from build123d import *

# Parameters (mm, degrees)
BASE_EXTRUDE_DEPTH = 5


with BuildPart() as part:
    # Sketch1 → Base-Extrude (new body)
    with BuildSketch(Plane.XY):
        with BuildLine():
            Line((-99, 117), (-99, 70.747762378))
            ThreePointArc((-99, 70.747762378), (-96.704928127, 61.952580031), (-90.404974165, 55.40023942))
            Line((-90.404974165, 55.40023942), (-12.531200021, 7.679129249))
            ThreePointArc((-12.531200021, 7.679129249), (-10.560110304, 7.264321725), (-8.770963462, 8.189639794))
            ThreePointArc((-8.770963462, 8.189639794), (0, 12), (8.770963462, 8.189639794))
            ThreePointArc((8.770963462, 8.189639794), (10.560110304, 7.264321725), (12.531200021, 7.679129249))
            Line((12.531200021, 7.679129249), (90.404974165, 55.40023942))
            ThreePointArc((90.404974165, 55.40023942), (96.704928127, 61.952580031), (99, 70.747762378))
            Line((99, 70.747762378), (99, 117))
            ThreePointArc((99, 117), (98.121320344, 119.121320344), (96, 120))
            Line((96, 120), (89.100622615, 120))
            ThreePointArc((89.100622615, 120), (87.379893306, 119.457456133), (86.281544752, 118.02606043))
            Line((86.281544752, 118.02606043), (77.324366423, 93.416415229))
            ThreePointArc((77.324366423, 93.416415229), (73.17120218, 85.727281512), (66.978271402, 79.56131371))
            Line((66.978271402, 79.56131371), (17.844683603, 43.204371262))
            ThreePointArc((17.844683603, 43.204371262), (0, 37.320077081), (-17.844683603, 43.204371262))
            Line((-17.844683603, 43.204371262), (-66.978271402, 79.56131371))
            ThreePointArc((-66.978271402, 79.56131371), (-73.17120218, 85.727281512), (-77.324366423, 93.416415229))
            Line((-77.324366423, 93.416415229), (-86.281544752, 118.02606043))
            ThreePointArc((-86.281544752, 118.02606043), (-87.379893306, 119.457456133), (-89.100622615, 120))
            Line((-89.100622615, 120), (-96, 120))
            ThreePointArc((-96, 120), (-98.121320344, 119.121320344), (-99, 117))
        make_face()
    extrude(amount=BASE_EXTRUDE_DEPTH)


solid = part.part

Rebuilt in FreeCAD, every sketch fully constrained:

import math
import FreeCAD as App
import Part
import Sketcher

V = App.Vector
Q = App.Units.Quantity

doc = App.newDocument("Part")
params = doc.addObject("Spreadsheet::Sheet", "Params")
for row, (alias, value) in enumerate([
    ("sketch1_radius", "18 mm"),
    ("sketch1_radius2", "3 mm"),
    ("sketch1_radius3", "12 mm"),
    ("sketch1_radius4", "30 mm"),
    ("pad1_length", "5 mm"),
], start=1):
    params.set(f"A{row}", alias)
    params.set(f"B{row}", "=" + value)
    params.setAlias(f"B{row}", alias)

body = doc.addObject("PartDesign::Body", "Body")

# Sketch on XY plane
sketch1 = doc.addObject("Sketcher::SketchObject", "Sketch")
body.addObject(sketch1)
sketch1.AttachmentSupport = (doc.XY_Plane, [""])
sketch1.MapMode = "FlatFace"
sketch1.addGeometry(Part.LineSegment(V(-99, 117, 0), V(-99, 70.7, 0)), False)
sketch1.addGeometry(Part.ArcOfCircle(Part.Circle(V(-81, 70.7, 0), V(0, 0, 1), 18), math.radians(-180), math.radians(-122)), False)
sketch1.addGeometry(Part.LineSegment(V(-90.4, 55.4, 0), V(-12.5, 7.7, 0)), False)
sketch1.addGeometry(Part.ArcOfCircle(Part.Circle(V(-11, 10.2, 0), V(0, 0, 1), 3), math.radians(-122), math.radians(-43)), False)
sketch1.addGeometry(Part.ArcOfCircle(Part.Circle(V(0, 0, 0), V(0, 0, 1), 12), math.radians(43), math.radians(137)), False)
sketch1.addGeometry(Part.ArcOfCircle(Part.Circle(V(11, 10.2, 0), V(0, 0, 1), 3), math.radians(-137), math.radians(-58)), False)
sketch1.addGeometry(Part.LineSegment(V(12.5, 7.7, 0), V(90.4, 55.4, 0)), False)
sketch1.addGeometry(Part.ArcOfCircle(Part.Circle(V(81, 70.7, 0), V(0, 0, 1), 18), math.radians(-58), math.radians(0)), False)
sketch1.addGeometry(Part.LineSegment(V(99, 70.7, 0), V(99, 117, 0)), False)
sketch1.addGeometry(Part.ArcOfCircle(Part.Circle(V(96, 117, 0), V(0, 0, 1), 3), math.radians(0), math.radians(90)), False)
sketch1.addGeometry(Part.LineSegment(V(96, 120, 0), V(89.1, 120, 0)), False)
sketch1.addGeometry(Part.ArcOfCircle(Part.Circle(V(89.1, 117, 0), V(0, 0, 1), 3), math.radians(90), math.radians(160)), False)
sketch1.addGeometry(Part.LineSegment(V(86.3, 118, 0), V(77.3, 93.4, 0)), False)
sketch1.addGeometry(Part.ArcOfCircle(Part.Circle(V(49.1, 103.7, 0), V(0, 0, 1), 30), math.radians(-53), math.radians(-20)), False)
sketch1.addGeometry(Part.LineSegment(V(67, 79.6, 0), V(17.8, 43.2, 0)), False)
sketch1.addGeometry(Part.ArcOfCircle(Part.Circle(V(0, 67.3, 0), V(0, 0, 1), 30), math.radians(-126), math.radians(-54)), False)
sketch1.addGeometry(Part.LineSegment(V(-17.8, 43.2, 0), V(-67, 79.6, 0)), False)
sketch1.addGeometry(Part.ArcOfCircle(Part.Circle(V(-49.1, 103.7, 0), V(0, 0, 1), 30), math.radians(-160), math.radians(-127)), False)
sketch1.addGeometry(Part.LineSegment(V(-77.3, 93.4, 0), V(-86.3, 118, 0)), False)
sketch1.addGeometry(Part.ArcOfCircle(Part.Circle(V(-89.1, 117, 0), V(0, 0, 1), 3), math.radians(20), math.radians(90)), False)
sketch1.addGeometry(Part.LineSegment(V(-89.1, 120, 0), V(-96, 120, 0)), False)
sketch1.addGeometry(Part.ArcOfCircle(Part.Circle(V(-96, 117, 0), V(0, 0, 1), 3), math.radians(90), math.radians(180)), False)
sketch1.addConstraint(Sketcher.Constraint("Tangent", 0, 2, 1, 1))
sketch1.addConstraint(Sketcher.Constraint("Tangent", 1, 2, 2, 1))
sketch1.addConstraint(Sketcher.Constraint("Tangent", 2, 2, 3, 1))
sketch1.addConstraint(Sketcher.Constraint("Tangent", 3, 2, 4, 2))
sketch1.addConstraint(Sketcher.Constraint("Tangent", 4, 1, 5, 1))
sketch1.addConstraint(Sketcher.Constraint("Tangent", 5, 2, 6, 1))
sketch1.addConstraint(Sketcher.Constraint("Tangent", 6, 2, 7, 1))
sketch1.addConstraint(Sketcher.Constraint("Tangent", 7, 2, 8, 1))
sketch1.addConstraint(Sketcher.Constraint("Tangent", 8, 2, 9, 1))
sketch1.addConstraint(Sketcher.Constraint("Tangent", 9, 2, 10, 1))
sketch1.addConstraint(Sketcher.Constraint("Tangent", 10, 2, 11, 1))
sketch1.addConstraint(Sketcher.Constraint("Tangent", 11, 2, 12, 1))
sketch1.addConstraint(Sketcher.Constraint("Tangent", 12, 2, 13, 2))
sketch1.addConstraint(Sketcher.Constraint("Tangent", 13, 1, 14, 1))
sketch1.addConstraint(Sketcher.Constraint("Tangent", 14, 2, 15, 2))
sketch1.addConstraint(Sketcher.Constraint("Tangent", 15, 1, 16, 1))
sketch1.addConstraint(Sketcher.Constraint("Tangent", 16, 2, 17, 2))
sketch1.addConstraint(Sketcher.Constraint("Tangent", 17, 1, 18, 1))
sketch1.addConstraint(Sketcher.Constraint("Tangent", 18, 2, 19, 1))
sketch1.addConstraint(Sketcher.Constraint("Tangent", 19, 2, 20, 1))
sketch1.addConstraint(Sketcher.Constraint("Tangent", 20, 2, 21, 1))
sketch1.addConstraint(Sketcher.Constraint("Tangent", 21, 2, 0, 1))
sketch1.addConstraint(Sketcher.Constraint("Vertical", 0))
sketch1.addConstraint(Sketcher.Constraint("Vertical", 8))
sketch1.addConstraint(Sketcher.Constraint("Horizontal", 10))
sketch1.addConstraint(Sketcher.Constraint("Horizontal", 20))
sketch1.addConstraint(Sketcher.Constraint("Coincident", 4, 3, -1, 1))
sketch1.addConstraint(Sketcher.Constraint("Equal", 3, 5))
sketch1.addConstraint(Sketcher.Constraint("Equal", 1, 7))
sketch1.addConstraint(Sketcher.Constraint("Equal", 5, 9))
sketch1.addConstraint(Sketcher.Constraint("Equal", 9, 11))
sketch1.addConstraint(Sketcher.Constraint("Equal", 13, 15))
sketch1.addConstraint(Sketcher.Constraint("Equal", 15, 17))
sketch1.addConstraint(Sketcher.Constraint("Equal", 11, 19))
sketch1.addConstraint(Sketcher.Constraint("Equal", 19, 21))
sketch1.addConstraint(Sketcher.Constraint("Symmetric", 1, 3, 7, 3, -2))
sketch1.addConstraint(Sketcher.Constraint("Symmetric", 13, 3, 17, 3, -2))
sketch1.addConstraint(Sketcher.Constraint("Symmetric", 11, 3, 19, 3, -2))
sketch1.addConstraint(Sketcher.Constraint("PointOnObject", 15, 3, -2))
sketch1.addConstraint(Sketcher.Constraint("Horizontal", 3, 3, 5, 3))
sketch1.addConstraint(Sketcher.Constraint("Radius", 1, Q("18 mm")))
sketch1.addConstraint(Sketcher.Constraint("Radius", 3, Q("3 mm")))
sketch1.addConstraint(Sketcher.Constraint("Radius", 4, Q("12 mm")))
sketch1.addConstraint(Sketcher.Constraint("Radius", 13, Q("30 mm")))
sketch1.addConstraint(Sketcher.Constraint("Angle", 12, Q("-110 deg")))
sketch1.addConstraint(Sketcher.Constraint("DistanceX", 1, 3, -1, 1, Q("81 mm")))
sketch1.addConstraint(Sketcher.Constraint("DistanceY", -1, 1, 9, 3, Q("117 mm")))
sketch1.addConstraint(Sketcher.Constraint("Angle", 2, Q("-31.5 deg")))
sketch1.addConstraint(Sketcher.Constraint("Angle", 14, Q("-143.5 deg")))
sketch1.addConstraint(Sketcher.Constraint("DistanceX", 2, 2, -1, 1, Q("12.5312 mm")))
sketch1.addConstraint(Sketcher.Constraint("Distance", 14, Q("61.122309 mm")))
sketch1.addConstraint(Sketcher.Constraint("DistanceX", 10, 2, 10, 1, Q("6.899377 mm")))
sketch1.setExpression("Constraints[40]", "Params.sketch1_radius")
sketch1.setExpression("Constraints[41]", "Params.sketch1_radius2")
sketch1.setExpression("Constraints[42]", "Params.sketch1_radius3")
sketch1.setExpression("Constraints[43]", "Params.sketch1_radius4")
pad1 = doc.addObject("PartDesign::Pad", "Pad")
body.addObject(pad1)
pad1.Profile = sketch1
pad1.setExpression("Length", "Params.pad1_length")

doc.recompute()
